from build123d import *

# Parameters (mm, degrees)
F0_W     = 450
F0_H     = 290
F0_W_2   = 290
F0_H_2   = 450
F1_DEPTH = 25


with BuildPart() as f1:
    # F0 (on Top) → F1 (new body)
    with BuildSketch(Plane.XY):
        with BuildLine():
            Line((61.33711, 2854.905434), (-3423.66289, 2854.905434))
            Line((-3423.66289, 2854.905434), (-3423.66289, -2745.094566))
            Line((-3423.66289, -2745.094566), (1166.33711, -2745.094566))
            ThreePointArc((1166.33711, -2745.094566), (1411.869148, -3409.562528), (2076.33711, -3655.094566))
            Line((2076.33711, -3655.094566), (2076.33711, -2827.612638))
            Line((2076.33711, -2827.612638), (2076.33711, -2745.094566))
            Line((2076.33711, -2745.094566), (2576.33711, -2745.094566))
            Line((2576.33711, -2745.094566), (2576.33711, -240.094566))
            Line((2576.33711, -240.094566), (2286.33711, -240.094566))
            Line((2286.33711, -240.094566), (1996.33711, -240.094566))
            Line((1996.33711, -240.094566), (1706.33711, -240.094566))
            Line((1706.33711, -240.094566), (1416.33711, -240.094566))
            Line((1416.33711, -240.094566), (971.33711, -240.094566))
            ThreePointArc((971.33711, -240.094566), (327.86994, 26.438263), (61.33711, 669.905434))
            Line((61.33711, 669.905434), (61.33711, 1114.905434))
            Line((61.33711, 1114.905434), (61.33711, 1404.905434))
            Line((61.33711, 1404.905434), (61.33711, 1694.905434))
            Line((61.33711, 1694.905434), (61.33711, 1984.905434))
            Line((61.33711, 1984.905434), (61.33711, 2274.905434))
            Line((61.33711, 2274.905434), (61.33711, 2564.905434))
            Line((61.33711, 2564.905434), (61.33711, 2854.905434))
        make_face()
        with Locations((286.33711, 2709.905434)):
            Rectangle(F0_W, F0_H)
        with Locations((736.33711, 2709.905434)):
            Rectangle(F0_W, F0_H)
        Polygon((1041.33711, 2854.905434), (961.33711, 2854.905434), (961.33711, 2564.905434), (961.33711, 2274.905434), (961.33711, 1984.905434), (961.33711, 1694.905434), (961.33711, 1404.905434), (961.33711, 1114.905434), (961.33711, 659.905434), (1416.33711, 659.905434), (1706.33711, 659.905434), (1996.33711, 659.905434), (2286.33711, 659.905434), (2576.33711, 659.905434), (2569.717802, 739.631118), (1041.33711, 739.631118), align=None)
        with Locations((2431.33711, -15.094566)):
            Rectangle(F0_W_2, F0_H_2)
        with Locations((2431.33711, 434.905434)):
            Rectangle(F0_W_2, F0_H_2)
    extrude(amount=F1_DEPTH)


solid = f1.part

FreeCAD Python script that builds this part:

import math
import FreeCAD as App
import Part
import Sketcher

V = App.Vector
Q = App.Units.Quantity

doc = App.newDocument("Part")
body = doc.addObject("PartDesign::Body", "Body")

# Sketch on XY plane
sketch1 = body.newObject("Sketcher::SketchObject", "Sketch")
sketch1.AttachmentSupport = (doc.getObject("XY_Plane"), [""])
sketch1.MapMode = "FlatFace"
sketch1.addGeometry(Part.LineSegment(V(-3424, 2855, 0), V(-3424, -2745, 0)), False)
sketch1.addGeometry(Part.LineSegment(V(-3424, -2745, 0), V(1166, -2745, 0)), False)
sketch1.addGeometry(Part.ArcOfCircle(Part.Circle(V(2011, -2811, 0), V(0, 0, 1), 847), math.radians(176), math.radians(274)), False)
sketch1.addGeometry(Part.LineSegment(V(2076, -3655, 0), V(2076, -2745, 0)), False)
sketch1.addGeometry(Part.LineSegment(V(2076, -2745, 0), V(2576, -2745, 0)), False)
sketch1.addGeometry(Part.LineSegment(V(2576, -2745, 0), V(2576, 660, 0)), False)
sketch1.addGeometry(Part.LineSegment(V(2576, 660, 0), V(2570, 740, 0)), False)
sketch1.addGeometry(Part.LineSegment(V(2570, 740, 0), V(1041, 740, 0)), False)
sketch1.addGeometry(Part.LineSegment(V(1041, 740, 0), V(1041, 2855, 0)), False)
sketch1.addGeometry(Part.LineSegment(V(1041, 2855, 0), V(-3424, 2855, 0)), False)
sketch1.addGeometry(Part.LineSegment(V(2286, -240, 0), V(971, -240, 0)), False)
sketch1.addGeometry(Part.ArcOfCircle(Part.Circle(V(971, 670, 0), V(0, 0, 1), 910), math.radians(-180), math.radians(-90)), False)
sketch1.addGeometry(Part.LineSegment(V(61, 670, 0), V(61, 2565, 0)), False)
sketch1.addGeometry(Part.LineSegment(V(61, 2565, 0), V(961, 2565, 0)), False)
sketch1.addGeometry(Part.LineSegment(V(961, 2565, 0), V(961, 660, 0)), False)
sketch1.addGeometry(Part.LineSegment(V(961, 660, 0), V(2286, 660, 0)), False)
sketch1.addGeometry(Part.LineSegment(V(2286, 660, 0), V(2286, -240, 0)), False)
sketch1.addConstraint(Sketcher.Constraint("Coincident", 0, 2, 1, 1))
sketch1.addConstraint(Sketcher.Constraint("Coincident", 1, 2, 2, 1))
sketch1.addConstraint(Sketcher.Constraint("Coincident", 2, 2, 3, 1))
sketch1.addConstraint(Sketcher.Constraint("Coincident", 3, 2, 4, 1))
sketch1.addConstraint(Sketcher.Constraint("Coincident", 4, 2, 5, 1))
sketch1.addConstraint(Sketcher.Constraint("Coincident", 5, 2, 6, 1))
sketch1.addConstraint(Sketcher.Constraint("Coincident", 6, 2, 7, 1))
sketch1.addConstraint(Sketcher.Constraint("Coincident", 7, 2, 8, 1))
sketch1.addConstraint(Sketcher.Constraint("Coincident", 8, 2, 9, 1))
sketch1.addConstraint(Sketcher.Constraint("Coincident", 9, 2, 0, 1))
sketch1.addConstraint(Sketcher.Constraint("Coincident", 10, 2, 11, 2))
sketch1.addConstraint(Sketcher.Constraint("Coincident", 11, 1, 12, 1))
sketch1.addConstraint(Sketcher.Constraint("Coincident", 12, 2, 13, 1))
sketch1.addConstraint(Sketcher.Constraint("Coincident", 13, 2, 14, 1))
sketch1.addConstraint(Sketcher.Constraint("Coincident", 14, 2, 15, 1))
sketch1.addConstraint(Sketcher.Constraint("Coincident", 15, 2, 16, 1))
sketch1.addConstraint(Sketcher.Constraint("Coincident", 16, 2, 10, 1))
sketch1.addConstraint(Sketcher.Constraint("Vertical", 0))
sketch1.addConstraint(Sketcher.Constraint("Horizontal", 1))
sketch1.addConstraint(Sketcher.Constraint("Vertical", 3))
sketch1.addConstraint(Sketcher.Constraint("Horizontal", 4))
sketch1.addConstraint(Sketcher.Constraint("Vertical", 5))
sketch1.addConstraint(Sketcher.Constraint("Horizontal", 7))
sketch1.addConstraint(Sketcher.Constraint("Vertical", 8))
sketch1.addConstraint(Sketcher.Constraint("Horizontal", 9))
sketch1.addConstraint(Sketcher.Constraint("Horizontal", 10))
sketch1.addConstraint(Sketcher.Constraint("Vertical", 12))
sketch1.addConstraint(Sketcher.Constraint("Horizontal", 13))
sketch1.addConstraint(Sketcher.Constraint("Vertical", 14))
sketch1.addConstraint(Sketcher.Constraint("Horizontal", 15))
sketch1.addConstraint(Sketcher.Constraint("Vertical", 16))
sketch1.addConstraint(Sketcher.Constraint("Horizontal", 1, 2, 3, 2))
sketch1.addConstraint(Sketcher.Constraint("Horizontal", 5, 2, 14, 2))
sketch1.addConstraint(Sketcher.Constraint("Vertical", 11, 3, 10, 2))
sketch1.addConstraint(Sketcher.Constraint("Equal", 13, 16))
sketch1.addConstraint(Sketcher.Constraint("Radius", 11, Q("910.000001 mm")))
sketch1.addConstraint(Sketcher.Constraint("DistanceX", 1, 1, 1, 2, Q("4590 mm")))
sketch1.addConstraint(Sketcher.Constraint("DistanceX", 4, 1, 4, 2, Q("500 mm")))
sketch1.addConstraint(Sketcher.Constraint("DistanceX", 9, 2, 9, 1, Q("4465 mm")))
sketch1.addConstraint(Sketcher.Constraint("DistanceX", 10, 2, 10, 1, Q("1315 mm")))
sketch1.addConstraint(Sketcher.Constraint("DistanceX", 13, 1, 13, 2, Q("900 mm")))
sketch1.addConstraint(Sketcher.Constraint("DistanceY", 0, 2, 0, 1, Q("5600 mm")))
sketch1.addConstraint(Sketcher.Constraint("DistanceY", 3, 1, 3, 2, Q("910 mm")))
sketch1.addConstraint(Sketcher.Constraint("DistanceY", 5, 1, 5, 2, Q("3405 mm")))
sketch1.addConstraint(Sketcher.Constraint("DistanceY", 12, 1, 12, 2, Q("1895 mm")))
sketch1.addConstraint(Sketcher.Constraint("DistanceY", 14, 2, 14, 1, Q("1905 mm")))
sketch1.addConstraint(Sketcher.Constraint("Distance", 6, Q("80 mm")))
sketch1.addConstraint(Sketcher.Constraint("DistanceX", 0, 2, 11, 3, Q("4395.000001 mm")))
sketch1.addConstraint(Sketcher.Constraint("DistanceX", 1, 2, 3, 2, Q("910 mm")))
sketch1.addConstraint(Sketcher.Constraint("Radius", 2, Q("846.976223 mm")))
sketch1.addConstraint(Sketcher.Constraint("DistanceX", 7, 2, 7, 1, Q("1528.380692 mm")))
sketch1.addConstraint(Sketcher.Constraint("DistanceX", -1, 1, 2, 3, Q("2010.771779 mm")))
sketch1.addConstraint(Sketcher.Constraint("DistanceY", -1, 1, 6, 2, Q("739.631118 mm")))
pad1 = body.newObject("PartDesign::Pad", "Pad")
pad1.Profile = sketch1
pad1.Length = 25

doc.recompute()
